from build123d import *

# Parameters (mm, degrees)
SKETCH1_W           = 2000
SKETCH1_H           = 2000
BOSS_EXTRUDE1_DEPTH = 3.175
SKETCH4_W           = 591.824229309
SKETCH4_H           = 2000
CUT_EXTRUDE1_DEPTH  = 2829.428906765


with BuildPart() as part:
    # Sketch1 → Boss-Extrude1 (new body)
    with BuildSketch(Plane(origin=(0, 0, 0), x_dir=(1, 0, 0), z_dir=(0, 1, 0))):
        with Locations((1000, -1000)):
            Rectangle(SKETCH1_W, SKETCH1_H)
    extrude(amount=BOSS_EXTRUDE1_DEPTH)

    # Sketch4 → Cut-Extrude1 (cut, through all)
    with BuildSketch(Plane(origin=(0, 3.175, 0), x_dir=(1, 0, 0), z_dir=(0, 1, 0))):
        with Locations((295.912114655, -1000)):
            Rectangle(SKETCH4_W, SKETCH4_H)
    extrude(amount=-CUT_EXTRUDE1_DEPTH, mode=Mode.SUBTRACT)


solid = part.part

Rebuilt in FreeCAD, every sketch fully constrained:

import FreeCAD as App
import Part
import Sketcher
from FreeCAD import Vector
Q = App.Units.Quantity

doc = App.newDocument("Part")
body = doc.addObject("PartDesign::Body", "Body")

# Sketch on XZ plane
sketch1 = body.newObject("Sketcher::SketchObject", "Sketch")
sketch1.AttachmentSupport = (doc.getObject("XZ_Plane"), [""])
sketch1.MapMode = "FlatFace"
sketch1.addGeometry([
    Part.LineSegment(Vector(0, 0, 0), Vector(0, 2000, 0)),
    Part.LineSegment(Vector(0, 2000, 0), Vector(2000, 2000, 0)),
    Part.LineSegment(Vector(2000, 2000, 0), Vector(2000, 0, 0)),
    Part.LineSegment(Vector(2000, 0, 0), Vector(0, 0, 0)),
], False)
sketch1.addConstraint([
    Sketcher.Constraint("Coincident", 0, 2, 1, 1),
    Sketcher.Constraint("Coincident", 1, 2, 2, 1),
    Sketcher.Constraint("Coincident", 2, 2, 3, 1),
    Sketcher.Constraint("Coincident", 3, 2, 0, 1),
    Sketcher.Constraint("Vertical", 0),
    Sketcher.Constraint("Horizontal", 1),
    Sketcher.Constraint("Vertical", 2),
    Sketcher.Constraint("Horizontal", 3),
    Sketcher.Constraint("Coincident", 3, 2, -1, 1),
    Sketcher.Constraint("Equal", 3, 0),
    Sketcher.Constraint("DistanceX", 1, 1, 1, 2, Q("2000 mm")),
])
pad1 = body.newObject("PartDesign::Pad", "Pad")
pad1.Profile = sketch1
pad1.Length = 3.175
pad1.Reversed = True

# Sketch on XZ plane
sketch2 = body.newObject("Sketcher::SketchObject", "Sketch001")
sketch2.AttachmentSupport = (doc.getObject("XZ_Plane"), [""])
sketch2.MapMode = "FlatFace"
sketch2.AttachmentOffset = App.Placement(Vector(0, 0, -3.175), App.Rotation())
sketch2.addGeometry([
    Part.LineSegment(Vector(0, 0, 0), Vector(0, 2000, 0)),
    Part.LineSegment(Vector(0, 2000, 0), Vector(592, 2000, 0)),
    Part.LineSegment(Vector(592, 2000, 0), Vector(592, 0, 0)),
    Part.LineSegment(Vector(592, 0, 0), Vector(0, 0, 0)),
], False)
sketch2.addConstraint([
    Sketcher.Constraint("Coincident", 0, 2, 1, 1),
    Sketcher.Constraint("Coincident", 1, 2, 2, 1),
    Sketcher.Constraint("Coincident", 2, 2, 3, 1),
    Sketcher.Constraint("Coincident", 3, 2, 0, 1),
    Sketcher.Constraint("Vertical", 0),
    Sketcher.Constraint("Horizontal", 1),
    Sketcher.Constraint("Vertical", 2),
    Sketcher.Constraint("Horizontal", 3),
    Sketcher.Constraint("Coincident", 3, 2, -1, 1),
    Sketcher.Constraint("DistanceY", 0, 1, 0, 2, Q("2000 mm")),
    Sketcher.Constraint("DistanceX", 1, 1, 1, 2, Q("591.824229 mm")),
])
pocket1 = body.newObject("PartDesign::Pocket", "Pocket")
pocket1.Profile = sketch2
pocket1.Type = "ThroughAll"
pocket1.Reversed = True

doc.recompute()
